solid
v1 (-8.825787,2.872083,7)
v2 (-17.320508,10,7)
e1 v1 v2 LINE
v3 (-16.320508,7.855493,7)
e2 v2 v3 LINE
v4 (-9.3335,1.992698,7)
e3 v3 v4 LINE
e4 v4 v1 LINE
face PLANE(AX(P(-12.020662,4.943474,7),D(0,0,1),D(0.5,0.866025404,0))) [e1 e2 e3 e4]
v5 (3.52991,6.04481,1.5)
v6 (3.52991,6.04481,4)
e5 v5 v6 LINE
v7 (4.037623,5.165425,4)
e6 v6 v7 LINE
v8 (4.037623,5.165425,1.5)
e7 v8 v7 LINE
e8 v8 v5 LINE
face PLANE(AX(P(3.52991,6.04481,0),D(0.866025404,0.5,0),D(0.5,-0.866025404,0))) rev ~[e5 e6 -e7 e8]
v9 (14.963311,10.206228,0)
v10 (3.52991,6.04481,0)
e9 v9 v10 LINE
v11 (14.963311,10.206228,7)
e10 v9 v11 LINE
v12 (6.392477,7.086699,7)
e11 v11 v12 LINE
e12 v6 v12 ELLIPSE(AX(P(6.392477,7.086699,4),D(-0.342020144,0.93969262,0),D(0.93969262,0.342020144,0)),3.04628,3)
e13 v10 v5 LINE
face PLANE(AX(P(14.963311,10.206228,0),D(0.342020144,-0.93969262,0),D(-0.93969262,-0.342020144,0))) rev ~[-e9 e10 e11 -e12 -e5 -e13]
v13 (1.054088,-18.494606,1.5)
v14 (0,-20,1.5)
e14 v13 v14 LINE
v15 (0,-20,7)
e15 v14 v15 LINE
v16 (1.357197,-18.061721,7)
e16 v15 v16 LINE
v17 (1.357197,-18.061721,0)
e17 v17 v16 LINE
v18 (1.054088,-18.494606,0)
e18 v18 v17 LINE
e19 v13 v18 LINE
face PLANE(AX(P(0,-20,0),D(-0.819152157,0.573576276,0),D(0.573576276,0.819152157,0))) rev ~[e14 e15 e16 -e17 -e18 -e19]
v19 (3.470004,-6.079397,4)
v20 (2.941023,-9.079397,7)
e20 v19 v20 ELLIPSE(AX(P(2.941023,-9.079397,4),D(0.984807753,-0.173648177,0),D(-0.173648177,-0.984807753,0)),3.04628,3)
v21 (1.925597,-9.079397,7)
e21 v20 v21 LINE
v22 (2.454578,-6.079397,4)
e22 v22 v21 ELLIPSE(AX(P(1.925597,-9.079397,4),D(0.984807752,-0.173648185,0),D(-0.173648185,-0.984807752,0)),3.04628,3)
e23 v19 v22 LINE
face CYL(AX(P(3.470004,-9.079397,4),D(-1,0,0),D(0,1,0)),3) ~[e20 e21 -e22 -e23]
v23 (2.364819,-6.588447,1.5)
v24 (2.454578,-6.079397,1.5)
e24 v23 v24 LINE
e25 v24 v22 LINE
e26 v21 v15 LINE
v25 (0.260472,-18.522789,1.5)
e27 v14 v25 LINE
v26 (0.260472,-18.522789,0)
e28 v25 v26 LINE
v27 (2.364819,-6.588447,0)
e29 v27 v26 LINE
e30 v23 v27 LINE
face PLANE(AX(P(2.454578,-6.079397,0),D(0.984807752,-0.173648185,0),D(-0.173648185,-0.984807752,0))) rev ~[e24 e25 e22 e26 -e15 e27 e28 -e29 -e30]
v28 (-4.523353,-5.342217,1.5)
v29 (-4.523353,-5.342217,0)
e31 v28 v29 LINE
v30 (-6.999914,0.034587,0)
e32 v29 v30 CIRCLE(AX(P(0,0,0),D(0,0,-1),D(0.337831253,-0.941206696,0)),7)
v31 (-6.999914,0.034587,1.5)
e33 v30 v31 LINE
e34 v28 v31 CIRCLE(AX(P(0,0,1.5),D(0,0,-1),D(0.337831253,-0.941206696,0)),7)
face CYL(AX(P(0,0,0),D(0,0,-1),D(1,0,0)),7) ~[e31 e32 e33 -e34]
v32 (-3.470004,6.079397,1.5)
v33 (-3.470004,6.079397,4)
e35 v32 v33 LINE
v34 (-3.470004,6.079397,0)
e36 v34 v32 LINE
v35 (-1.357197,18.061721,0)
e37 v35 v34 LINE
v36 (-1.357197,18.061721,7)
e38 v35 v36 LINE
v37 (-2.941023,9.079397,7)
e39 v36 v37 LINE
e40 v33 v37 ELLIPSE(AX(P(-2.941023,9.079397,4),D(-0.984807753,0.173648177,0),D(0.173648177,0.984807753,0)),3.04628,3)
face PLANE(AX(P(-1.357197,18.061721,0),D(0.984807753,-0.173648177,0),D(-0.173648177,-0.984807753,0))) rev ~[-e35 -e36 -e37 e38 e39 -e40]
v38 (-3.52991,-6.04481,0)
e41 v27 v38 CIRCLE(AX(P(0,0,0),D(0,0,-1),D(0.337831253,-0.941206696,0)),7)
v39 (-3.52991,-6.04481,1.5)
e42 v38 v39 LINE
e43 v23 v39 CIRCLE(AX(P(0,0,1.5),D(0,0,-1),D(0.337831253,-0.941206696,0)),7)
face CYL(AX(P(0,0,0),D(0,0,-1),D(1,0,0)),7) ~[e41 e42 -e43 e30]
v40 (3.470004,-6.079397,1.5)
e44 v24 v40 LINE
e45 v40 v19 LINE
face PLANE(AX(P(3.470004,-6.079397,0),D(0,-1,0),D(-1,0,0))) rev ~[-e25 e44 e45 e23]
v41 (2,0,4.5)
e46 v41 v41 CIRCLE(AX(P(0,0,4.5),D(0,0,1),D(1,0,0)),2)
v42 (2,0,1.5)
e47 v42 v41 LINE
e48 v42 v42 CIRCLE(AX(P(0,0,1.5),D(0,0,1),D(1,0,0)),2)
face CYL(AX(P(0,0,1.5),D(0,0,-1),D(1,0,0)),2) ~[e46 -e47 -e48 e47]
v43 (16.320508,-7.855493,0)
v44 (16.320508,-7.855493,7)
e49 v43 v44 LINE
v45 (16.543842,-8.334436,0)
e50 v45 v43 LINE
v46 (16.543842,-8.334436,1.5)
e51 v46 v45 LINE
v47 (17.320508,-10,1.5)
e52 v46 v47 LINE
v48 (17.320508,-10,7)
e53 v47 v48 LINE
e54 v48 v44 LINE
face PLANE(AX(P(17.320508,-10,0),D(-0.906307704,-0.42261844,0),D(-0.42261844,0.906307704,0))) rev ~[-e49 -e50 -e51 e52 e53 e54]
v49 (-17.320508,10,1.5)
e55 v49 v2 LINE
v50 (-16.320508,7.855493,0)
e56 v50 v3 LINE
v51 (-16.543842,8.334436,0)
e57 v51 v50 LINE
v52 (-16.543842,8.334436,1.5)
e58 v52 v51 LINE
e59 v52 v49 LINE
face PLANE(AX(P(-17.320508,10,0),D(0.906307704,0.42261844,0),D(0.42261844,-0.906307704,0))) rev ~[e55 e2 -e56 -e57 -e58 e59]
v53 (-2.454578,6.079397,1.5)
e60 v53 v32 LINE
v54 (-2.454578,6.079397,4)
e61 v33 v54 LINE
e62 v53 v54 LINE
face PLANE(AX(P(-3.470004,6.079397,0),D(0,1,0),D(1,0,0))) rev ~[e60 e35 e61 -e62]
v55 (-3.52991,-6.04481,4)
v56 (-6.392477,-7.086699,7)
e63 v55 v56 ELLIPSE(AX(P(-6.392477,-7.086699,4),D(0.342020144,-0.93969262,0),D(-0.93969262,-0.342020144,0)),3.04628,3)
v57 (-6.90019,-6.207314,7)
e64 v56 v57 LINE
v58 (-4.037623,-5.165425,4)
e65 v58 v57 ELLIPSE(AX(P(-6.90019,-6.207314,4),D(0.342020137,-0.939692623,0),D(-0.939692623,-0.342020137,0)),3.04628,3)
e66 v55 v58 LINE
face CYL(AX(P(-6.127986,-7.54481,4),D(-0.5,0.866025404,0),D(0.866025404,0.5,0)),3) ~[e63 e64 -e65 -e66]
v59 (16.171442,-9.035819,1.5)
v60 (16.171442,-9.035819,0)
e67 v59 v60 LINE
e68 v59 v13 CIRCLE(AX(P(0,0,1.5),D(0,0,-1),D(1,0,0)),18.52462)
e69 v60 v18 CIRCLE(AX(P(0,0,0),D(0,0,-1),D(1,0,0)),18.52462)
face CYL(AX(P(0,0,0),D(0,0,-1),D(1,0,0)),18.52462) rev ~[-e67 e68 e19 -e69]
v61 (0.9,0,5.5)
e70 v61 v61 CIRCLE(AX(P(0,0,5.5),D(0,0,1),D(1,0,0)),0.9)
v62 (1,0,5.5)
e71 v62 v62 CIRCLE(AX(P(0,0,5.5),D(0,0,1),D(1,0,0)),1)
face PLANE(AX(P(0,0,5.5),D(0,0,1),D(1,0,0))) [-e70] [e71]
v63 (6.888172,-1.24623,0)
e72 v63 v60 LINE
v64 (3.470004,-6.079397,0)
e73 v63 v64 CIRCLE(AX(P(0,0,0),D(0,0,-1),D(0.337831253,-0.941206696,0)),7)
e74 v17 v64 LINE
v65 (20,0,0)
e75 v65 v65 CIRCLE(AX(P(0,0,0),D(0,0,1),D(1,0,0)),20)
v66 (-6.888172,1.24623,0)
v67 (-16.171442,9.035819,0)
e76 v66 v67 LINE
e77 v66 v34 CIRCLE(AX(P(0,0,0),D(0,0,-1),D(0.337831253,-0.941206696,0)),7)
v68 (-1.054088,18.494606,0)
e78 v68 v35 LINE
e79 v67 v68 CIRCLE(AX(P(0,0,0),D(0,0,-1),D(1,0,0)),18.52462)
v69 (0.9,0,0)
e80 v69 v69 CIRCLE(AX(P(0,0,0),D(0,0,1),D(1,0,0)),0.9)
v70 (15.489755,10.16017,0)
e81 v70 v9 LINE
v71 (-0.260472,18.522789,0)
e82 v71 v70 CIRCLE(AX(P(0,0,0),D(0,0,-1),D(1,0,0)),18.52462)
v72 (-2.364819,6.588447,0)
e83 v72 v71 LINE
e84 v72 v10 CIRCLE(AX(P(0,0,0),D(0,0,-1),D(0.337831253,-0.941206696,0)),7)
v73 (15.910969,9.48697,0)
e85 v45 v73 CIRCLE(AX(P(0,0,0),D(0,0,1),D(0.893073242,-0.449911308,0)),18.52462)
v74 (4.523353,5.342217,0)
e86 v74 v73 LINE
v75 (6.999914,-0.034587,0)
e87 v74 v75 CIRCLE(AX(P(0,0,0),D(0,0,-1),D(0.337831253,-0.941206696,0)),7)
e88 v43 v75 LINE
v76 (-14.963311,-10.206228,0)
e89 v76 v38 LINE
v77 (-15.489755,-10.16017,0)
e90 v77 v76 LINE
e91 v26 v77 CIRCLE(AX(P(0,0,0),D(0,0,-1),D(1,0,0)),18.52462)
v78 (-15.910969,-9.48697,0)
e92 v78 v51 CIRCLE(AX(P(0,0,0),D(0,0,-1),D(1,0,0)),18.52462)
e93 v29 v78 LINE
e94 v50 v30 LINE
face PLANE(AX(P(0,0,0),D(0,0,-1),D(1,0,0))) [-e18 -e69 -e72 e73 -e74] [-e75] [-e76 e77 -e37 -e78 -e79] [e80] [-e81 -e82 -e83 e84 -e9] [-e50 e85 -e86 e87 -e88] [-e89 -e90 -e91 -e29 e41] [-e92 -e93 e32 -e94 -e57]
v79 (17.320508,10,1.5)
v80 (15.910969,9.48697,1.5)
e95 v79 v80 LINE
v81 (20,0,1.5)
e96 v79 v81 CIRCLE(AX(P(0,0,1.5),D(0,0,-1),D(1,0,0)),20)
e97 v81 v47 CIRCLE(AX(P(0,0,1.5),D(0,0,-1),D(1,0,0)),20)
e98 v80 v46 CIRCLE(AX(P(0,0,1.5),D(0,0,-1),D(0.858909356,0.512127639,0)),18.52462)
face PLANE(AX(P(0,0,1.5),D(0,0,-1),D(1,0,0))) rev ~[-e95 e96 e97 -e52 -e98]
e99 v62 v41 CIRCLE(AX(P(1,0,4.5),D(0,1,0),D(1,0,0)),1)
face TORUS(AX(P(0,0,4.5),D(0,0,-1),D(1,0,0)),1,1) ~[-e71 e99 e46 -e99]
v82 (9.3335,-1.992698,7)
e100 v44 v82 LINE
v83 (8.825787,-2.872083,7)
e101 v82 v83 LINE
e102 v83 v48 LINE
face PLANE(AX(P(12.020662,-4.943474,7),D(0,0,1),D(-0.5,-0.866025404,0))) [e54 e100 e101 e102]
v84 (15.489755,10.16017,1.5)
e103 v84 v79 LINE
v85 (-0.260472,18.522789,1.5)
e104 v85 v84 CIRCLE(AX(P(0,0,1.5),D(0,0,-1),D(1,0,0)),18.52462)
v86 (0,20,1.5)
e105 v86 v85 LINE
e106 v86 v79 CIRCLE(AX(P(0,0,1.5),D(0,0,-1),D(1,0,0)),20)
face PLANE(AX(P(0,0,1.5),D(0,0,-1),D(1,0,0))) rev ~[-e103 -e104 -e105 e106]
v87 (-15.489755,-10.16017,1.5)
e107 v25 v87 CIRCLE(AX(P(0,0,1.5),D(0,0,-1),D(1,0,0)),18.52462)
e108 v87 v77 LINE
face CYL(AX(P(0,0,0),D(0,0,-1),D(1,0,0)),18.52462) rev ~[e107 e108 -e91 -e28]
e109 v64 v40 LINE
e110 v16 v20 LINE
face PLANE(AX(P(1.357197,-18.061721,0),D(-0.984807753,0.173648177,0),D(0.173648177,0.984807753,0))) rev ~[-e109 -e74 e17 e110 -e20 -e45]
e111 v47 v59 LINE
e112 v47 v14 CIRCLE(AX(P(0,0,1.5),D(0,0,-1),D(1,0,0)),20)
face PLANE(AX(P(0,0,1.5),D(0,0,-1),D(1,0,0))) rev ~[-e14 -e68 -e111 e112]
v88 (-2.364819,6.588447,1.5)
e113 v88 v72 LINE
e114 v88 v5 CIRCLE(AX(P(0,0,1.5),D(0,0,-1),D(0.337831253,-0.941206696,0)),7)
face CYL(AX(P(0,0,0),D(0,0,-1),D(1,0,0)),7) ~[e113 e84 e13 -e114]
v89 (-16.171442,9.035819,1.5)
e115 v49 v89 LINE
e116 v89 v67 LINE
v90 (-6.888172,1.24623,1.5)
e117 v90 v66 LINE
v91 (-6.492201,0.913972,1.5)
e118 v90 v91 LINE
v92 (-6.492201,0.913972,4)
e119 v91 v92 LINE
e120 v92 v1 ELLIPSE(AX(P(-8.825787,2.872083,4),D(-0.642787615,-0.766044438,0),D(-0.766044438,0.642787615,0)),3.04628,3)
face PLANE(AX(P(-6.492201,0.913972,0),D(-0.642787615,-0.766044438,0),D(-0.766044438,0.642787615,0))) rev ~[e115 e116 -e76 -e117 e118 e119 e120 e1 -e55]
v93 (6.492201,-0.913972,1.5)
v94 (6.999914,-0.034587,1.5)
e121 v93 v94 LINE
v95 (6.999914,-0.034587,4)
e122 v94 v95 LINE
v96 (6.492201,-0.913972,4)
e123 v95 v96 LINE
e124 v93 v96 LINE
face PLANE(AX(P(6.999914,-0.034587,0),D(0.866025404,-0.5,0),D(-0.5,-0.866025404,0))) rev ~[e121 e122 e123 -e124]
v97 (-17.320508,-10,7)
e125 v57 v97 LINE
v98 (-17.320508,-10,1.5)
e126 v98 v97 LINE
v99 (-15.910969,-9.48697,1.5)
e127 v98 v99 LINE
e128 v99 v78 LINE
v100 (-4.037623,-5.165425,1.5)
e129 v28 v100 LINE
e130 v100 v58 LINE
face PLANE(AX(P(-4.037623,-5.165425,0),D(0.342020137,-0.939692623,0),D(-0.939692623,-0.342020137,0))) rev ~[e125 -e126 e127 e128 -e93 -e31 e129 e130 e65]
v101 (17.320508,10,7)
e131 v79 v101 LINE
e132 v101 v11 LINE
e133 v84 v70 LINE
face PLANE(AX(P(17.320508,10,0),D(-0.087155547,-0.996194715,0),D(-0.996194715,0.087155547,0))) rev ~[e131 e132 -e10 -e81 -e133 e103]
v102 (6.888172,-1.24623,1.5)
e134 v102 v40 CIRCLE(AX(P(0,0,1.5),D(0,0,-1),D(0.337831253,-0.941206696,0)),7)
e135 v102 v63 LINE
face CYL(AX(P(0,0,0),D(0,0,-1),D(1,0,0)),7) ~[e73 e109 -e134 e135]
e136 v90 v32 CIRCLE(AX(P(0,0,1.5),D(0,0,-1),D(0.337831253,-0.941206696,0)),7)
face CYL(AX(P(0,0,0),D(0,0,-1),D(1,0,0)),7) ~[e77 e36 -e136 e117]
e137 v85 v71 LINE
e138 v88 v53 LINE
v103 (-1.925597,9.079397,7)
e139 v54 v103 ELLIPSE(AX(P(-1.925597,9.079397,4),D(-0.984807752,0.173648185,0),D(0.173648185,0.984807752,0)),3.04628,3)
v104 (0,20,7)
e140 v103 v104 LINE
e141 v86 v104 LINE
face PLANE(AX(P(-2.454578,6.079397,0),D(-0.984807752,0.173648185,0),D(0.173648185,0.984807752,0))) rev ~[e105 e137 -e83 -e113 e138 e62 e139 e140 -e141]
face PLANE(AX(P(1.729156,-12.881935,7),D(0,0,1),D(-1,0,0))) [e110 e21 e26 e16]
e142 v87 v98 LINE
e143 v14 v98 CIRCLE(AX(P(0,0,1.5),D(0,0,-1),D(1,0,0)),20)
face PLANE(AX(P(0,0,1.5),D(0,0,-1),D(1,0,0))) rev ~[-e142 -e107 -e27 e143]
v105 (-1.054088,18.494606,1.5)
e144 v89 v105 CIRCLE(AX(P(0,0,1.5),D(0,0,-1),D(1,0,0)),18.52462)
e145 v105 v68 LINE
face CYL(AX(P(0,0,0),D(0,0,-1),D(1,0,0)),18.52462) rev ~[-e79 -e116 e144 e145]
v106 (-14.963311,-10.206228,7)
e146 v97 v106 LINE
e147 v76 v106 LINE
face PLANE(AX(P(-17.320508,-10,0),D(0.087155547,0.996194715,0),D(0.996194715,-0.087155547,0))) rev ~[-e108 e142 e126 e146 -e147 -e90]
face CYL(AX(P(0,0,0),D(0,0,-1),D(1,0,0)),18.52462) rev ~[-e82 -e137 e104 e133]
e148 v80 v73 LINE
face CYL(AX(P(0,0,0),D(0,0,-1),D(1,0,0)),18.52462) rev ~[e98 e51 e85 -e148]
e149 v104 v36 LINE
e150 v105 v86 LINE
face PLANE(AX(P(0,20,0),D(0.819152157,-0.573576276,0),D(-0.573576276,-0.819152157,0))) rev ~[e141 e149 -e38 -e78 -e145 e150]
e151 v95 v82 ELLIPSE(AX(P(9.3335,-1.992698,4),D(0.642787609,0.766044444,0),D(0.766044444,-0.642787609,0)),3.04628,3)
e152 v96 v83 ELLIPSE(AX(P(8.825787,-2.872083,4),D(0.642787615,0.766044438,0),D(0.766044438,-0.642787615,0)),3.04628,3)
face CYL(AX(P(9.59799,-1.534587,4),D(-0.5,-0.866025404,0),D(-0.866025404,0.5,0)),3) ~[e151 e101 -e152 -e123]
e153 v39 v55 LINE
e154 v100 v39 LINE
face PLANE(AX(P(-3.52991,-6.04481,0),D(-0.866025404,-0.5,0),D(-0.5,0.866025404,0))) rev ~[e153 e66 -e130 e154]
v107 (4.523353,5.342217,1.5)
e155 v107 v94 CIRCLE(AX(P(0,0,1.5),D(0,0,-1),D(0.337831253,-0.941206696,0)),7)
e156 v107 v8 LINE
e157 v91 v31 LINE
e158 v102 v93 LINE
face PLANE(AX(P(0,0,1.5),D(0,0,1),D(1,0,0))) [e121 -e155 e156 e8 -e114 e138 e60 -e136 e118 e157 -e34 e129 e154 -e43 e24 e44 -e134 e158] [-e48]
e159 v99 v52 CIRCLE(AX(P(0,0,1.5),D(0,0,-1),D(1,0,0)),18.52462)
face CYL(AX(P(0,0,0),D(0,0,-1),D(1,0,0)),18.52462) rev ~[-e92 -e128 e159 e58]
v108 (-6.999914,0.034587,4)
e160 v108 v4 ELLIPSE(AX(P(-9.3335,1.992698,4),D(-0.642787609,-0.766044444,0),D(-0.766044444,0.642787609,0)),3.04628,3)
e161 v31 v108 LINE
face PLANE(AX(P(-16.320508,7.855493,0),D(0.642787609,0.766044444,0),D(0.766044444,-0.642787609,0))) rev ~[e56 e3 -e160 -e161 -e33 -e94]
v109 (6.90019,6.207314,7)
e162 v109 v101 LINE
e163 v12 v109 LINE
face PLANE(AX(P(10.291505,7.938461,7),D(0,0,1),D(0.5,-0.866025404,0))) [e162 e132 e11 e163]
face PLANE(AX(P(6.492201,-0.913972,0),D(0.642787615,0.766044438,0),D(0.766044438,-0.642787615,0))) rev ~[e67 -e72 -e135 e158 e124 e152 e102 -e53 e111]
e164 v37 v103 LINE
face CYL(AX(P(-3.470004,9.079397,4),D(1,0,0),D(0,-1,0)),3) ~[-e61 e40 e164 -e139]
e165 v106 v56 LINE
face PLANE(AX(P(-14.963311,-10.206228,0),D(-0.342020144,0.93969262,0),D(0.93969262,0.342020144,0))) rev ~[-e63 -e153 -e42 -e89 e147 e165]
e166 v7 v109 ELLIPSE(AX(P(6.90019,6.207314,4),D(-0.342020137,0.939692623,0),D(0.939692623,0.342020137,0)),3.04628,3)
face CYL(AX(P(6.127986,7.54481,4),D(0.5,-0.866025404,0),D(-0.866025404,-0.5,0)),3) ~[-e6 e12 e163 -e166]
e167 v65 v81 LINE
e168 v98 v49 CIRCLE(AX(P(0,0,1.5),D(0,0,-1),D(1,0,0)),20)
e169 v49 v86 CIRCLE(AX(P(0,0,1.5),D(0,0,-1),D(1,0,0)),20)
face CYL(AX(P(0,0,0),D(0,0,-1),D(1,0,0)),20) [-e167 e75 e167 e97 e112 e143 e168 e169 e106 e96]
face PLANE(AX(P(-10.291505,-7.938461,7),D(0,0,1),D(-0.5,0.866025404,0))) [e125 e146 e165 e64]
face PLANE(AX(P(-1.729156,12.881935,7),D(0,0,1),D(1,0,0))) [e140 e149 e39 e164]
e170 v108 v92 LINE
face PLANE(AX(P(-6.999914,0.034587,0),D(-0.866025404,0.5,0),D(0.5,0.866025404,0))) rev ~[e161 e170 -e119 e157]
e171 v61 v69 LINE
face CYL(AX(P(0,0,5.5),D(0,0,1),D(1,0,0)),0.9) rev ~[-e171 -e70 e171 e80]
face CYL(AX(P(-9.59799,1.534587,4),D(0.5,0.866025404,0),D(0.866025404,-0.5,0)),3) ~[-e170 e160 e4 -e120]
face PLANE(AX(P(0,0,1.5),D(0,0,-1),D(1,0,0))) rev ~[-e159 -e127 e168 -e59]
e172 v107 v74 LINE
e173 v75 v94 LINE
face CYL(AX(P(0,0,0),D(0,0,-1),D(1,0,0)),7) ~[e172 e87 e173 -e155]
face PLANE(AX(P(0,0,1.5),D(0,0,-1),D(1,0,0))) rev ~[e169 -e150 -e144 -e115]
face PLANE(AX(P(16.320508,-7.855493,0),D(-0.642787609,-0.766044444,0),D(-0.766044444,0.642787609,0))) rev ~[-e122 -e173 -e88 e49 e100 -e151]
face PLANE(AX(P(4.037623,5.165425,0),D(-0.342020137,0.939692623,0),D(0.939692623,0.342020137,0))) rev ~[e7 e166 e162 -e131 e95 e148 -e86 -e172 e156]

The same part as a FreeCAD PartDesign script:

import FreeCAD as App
import Part
import Sketcher

V = App.Vector
Q = App.Units.Quantity


def edges_at(feature, points):
    """Names of the edges that pass closest to the given points."""
    edges = feature.Shape.Edges
    near = lambda p: min(range(len(edges)), key=lambda i: edges[i].distToShape(Part.Vertex(*p))[0])
    return sorted({f"Edge{near(p) + 1}" for p in points})


def add_polygon(sketch, points):
    """Adds a closed chain of lines whose ends are joined by coincident constraints."""
    first, n = sketch.GeometryCount, len(points)
    for a, b in zip(points, points[1:] + points[:1]):
        sketch.addGeometry(Part.LineSegment(App.Vector(*a, 0), App.Vector(*b, 0)), False)
    for i in range(n):
        sketch.addConstraint(Sketcher.Constraint("Coincident", first + i, 2, first + (i + 1) % n, 1))

doc = App.newDocument("Part")
params = doc.addObject("Spreadsheet::Sheet", "Params")
for row, (alias, value) in enumerate([
    ("sketch1_diameter", "14 mm"),
    ("pad1_length", "1.5 mm"),
    ("pad2_length", "7 mm"),
    ("sketch3_diameter", "40 mm"),
    ("pad3_length", "1.5 mm"),
    ("sketch4_diameter", "4 mm"),
    ("pad4_length", "4 mm"),
    ("sketch5_diameter", "1.8 mm"),
    ("pocket1_length", "10 mm"),
    ("fillet_radius", "1 mm"),
    ("fillet2_radius", "3 mm"),
], start=1):
    params.set(f"A{row}", alias)
    params.set(f"B{row}", "=" + value)
    params.setAlias(f"B{row}", alias)

body = doc.addObject("PartDesign::Body", "Body")

# Sketch on XY plane
sketch1 = body.newObject("Sketcher::SketchObject", "Sketch")
sketch1.AttachmentSupport = (doc.getObject("XY_Plane"), [""])
sketch1.MapMode = "FlatFace"
sketch1.addGeometry(Part.Circle(V(0, 0, 0), V(0, 0, 1), 7), False)
sketch1.addConstraint([
    Sketcher.Constraint("Coincident", 0, 3, -1, 1),
    Sketcher.Constraint("Diameter", 0, Q("14 mm")),
])
sketch1.setExpression("Constraints[1]", "Params.sketch1_diameter")
pad1 = body.newObject("PartDesign::Pad", "Pad")
pad1.Profile = sketch1
pad1.setExpression("Length", "Params.pad1_length")

# Sketch on XY plane
sketch2 = body.newObject("Sketcher::SketchObject", "Sketch001")
sketch2.AttachmentSupport = (doc.getObject("XY_Plane"), [""])
sketch2.MapMode = "FlatFace"
add_polygon(sketch2, [(0, -20), (2.454578, -6.079397), (3.470004, -6.079397), (1.357197, -18.061721)])  # lines 0-3
sketch2.addConstraint([
    Sketcher.Constraint("Horizontal", 1),
    Sketcher.Constraint("PointOnObject", 3, 2, -2),
    Sketcher.Constraint("Parallel", 0, 2),
    Sketcher.Constraint("Angle", 0, Q("80 deg")),
    Sketcher.Constraint("Angle", 3, Q("-124.999989 deg")),
    Sketcher.Constraint("DistanceY", 3, 2, -1, 1, Q("20 mm")),
    Sketcher.Constraint("Distance", 3, Q("2.366201 mm")),
    Sketcher.Constraint("Distance", 0, Q("14.135351 mm")),
])
pad2 = body.newObject("PartDesign::Pad", "Pad001")
pad2.Profile = sketch2
pad2.setExpression("Length", "Params.pad2_length")
doc.recompute()

polarpattern = body.newObject("PartDesign::PolarPattern", "PolarPattern")
polarpattern.Originals = [pad2]
polarpattern.Axis = (doc.getObject("Z_Axis"), [""])
polarpattern.Angle = 360
polarpattern.Occurrences = 6
body.Tip = polarpattern

# Sketch on XY plane
sketch3 = body.newObject("Sketcher::SketchObject", "Sketch002")
sketch3.AttachmentSupport = (doc.getObject("XY_Plane"), [""])
sketch3.MapMode = "FlatFace"
sketch3.addGeometry([
    Part.Circle(V(0, 0, 0), V(0, 0, 1), 20),
    Part.Circle(V(0, 0, 0), V(0, 0, 1), 18.52462),
], False)
sketch3.addConstraint([
    Sketcher.Constraint("Coincident", 0, 3, -1, 1),
    Sketcher.Constraint("Coincident", 1, 3, -1, 1),
    Sketcher.Constraint("Diameter", 0, Q("40 mm")),
    Sketcher.Constraint("Diameter", 1, Q("37.04924 mm")),
])
sketch3.setExpression("Constraints[2]", "Params.sketch3_diameter")
pad3 = body.newObject("PartDesign::Pad", "Pad002")
pad3.Profile = sketch3
pad3.setExpression("Length", "Params.pad3_length")

# Sketch on XY plane
sketch4 = body.newObject("Sketcher::SketchObject", "Sketch003")
sketch4.AttachmentSupport = (doc.getObject("XY_Plane"), [""])
sketch4.MapMode = "FlatFace"
sketch4.AttachmentOffset = App.Placement(V(0, 0, 1.5), App.Rotation())
sketch4.addGeometry(Part.Circle(V(0, 0, 0), V(0, 0, 1), 2), False)
sketch4.addConstraint([
    Sketcher.Constraint("Coincident", 0, 3, -1, 1),
    Sketcher.Constraint("Diameter", 0, Q("4 mm")),
])
sketch4.setExpression("Constraints[1]", "Params.sketch4_diameter")
pad4 = body.newObject("PartDesign::Pad", "Pad003")
pad4.Profile = sketch4
pad4.setExpression("Length", "Params.pad4_length")

# Sketch on XY plane
sketch5 = body.newObject("Sketcher::SketchObject", "Sketch004")
sketch5.AttachmentSupport = (doc.getObject("XY_Plane"), [""])
sketch5.MapMode = "FlatFace"
sketch5.AttachmentOffset = App.Placement(V(0, 0, 5.5), App.Rotation())
sketch5.addGeometry(Part.Circle(V(0, 0, 0), V(0, 0, 1), 0.9), False)
sketch5.addConstraint([
    Sketcher.Constraint("Coincident", 0, 3, -1, 1),
    Sketcher.Constraint("Diameter", 0, Q("1.8 mm")),
])
sketch5.setExpression("Constraints[1]", "Params.sketch5_diameter")
pocket1 = body.newObject("PartDesign::Pocket", "Pocket")
pocket1.Profile = sketch5
pocket1.setExpression("Length", "Params.pocket1_length")
doc.recompute()

fillet = body.newObject("PartDesign::Fillet", "Fillet")
fillet.Base = (pocket1, edges_at(pocket1, [(-2, 0, 5.5)]))
fillet.setExpression("Radius", "Params.fillet_radius")
doc.recompute()

fillet2 = body.newObject("PartDesign::Fillet", "Fillet001")
fillet2.Base = (fillet, edges_at(fillet, [
    (2.962, -6.079, 7),
    (-3.784, -5.605, 7),
    (-6.746, 0.474, 7),
    (-2.962, 6.079, 7),
    (3.784, 5.605, 7),
    (6.746, -0.474, 7),
]))
fillet2.setExpression("Radius", "Params.fillet2_radius")

doc.recompute()
